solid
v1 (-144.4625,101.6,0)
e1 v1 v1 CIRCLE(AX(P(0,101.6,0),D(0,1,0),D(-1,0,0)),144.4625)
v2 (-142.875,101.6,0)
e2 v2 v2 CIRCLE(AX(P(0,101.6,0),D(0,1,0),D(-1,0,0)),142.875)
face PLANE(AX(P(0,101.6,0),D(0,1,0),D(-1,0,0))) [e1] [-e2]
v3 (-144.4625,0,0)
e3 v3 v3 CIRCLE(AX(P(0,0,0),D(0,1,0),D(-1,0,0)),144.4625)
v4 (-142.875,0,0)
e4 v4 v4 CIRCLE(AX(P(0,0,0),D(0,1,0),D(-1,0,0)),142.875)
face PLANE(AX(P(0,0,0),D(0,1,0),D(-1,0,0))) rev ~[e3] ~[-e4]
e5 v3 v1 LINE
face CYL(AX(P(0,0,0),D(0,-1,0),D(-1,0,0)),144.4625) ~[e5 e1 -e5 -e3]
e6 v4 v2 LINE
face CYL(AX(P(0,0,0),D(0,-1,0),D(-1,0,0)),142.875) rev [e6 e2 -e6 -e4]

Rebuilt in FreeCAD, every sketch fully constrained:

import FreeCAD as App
import Part
import Sketcher
Q = App.Units.Quantity

doc = App.newDocument("Part")
body = doc.addObject("PartDesign::Body", "Body")

# Sketch on XZ plane
sketch1 = body.newObject("Sketcher::SketchObject", "Sketch")
sketch1.AttachmentSupport = (doc.getObject("XZ_Plane"), [""])
sketch1.MapMode = "FlatFace"
sketch1.addGeometry([
    Part.Circle(App.Vector(0, 0, 0), App.Vector(0, 0, 1), 144.4625),
    Part.Circle(App.Vector(0, 0, 0), App.Vector(0, 0, 1), 142.875),
], False)
sketch1.addConstraint([
    Sketcher.Constraint("Coincident", 0, 3, -1, 1),
    Sketcher.Constraint("Coincident", 1, 3, -1, 1),
    Sketcher.Constraint("Diameter", 1, Q("11.25 in")),
    Sketcher.Constraint("Diameter", 0, Q("11.375 in")),
])
pad1 = body.newObject("PartDesign::Pad", "Pad")
pad1.Profile = sketch1
pad1.Length = Q("4 in")
pad1.Reversed = True

doc.recompute()
